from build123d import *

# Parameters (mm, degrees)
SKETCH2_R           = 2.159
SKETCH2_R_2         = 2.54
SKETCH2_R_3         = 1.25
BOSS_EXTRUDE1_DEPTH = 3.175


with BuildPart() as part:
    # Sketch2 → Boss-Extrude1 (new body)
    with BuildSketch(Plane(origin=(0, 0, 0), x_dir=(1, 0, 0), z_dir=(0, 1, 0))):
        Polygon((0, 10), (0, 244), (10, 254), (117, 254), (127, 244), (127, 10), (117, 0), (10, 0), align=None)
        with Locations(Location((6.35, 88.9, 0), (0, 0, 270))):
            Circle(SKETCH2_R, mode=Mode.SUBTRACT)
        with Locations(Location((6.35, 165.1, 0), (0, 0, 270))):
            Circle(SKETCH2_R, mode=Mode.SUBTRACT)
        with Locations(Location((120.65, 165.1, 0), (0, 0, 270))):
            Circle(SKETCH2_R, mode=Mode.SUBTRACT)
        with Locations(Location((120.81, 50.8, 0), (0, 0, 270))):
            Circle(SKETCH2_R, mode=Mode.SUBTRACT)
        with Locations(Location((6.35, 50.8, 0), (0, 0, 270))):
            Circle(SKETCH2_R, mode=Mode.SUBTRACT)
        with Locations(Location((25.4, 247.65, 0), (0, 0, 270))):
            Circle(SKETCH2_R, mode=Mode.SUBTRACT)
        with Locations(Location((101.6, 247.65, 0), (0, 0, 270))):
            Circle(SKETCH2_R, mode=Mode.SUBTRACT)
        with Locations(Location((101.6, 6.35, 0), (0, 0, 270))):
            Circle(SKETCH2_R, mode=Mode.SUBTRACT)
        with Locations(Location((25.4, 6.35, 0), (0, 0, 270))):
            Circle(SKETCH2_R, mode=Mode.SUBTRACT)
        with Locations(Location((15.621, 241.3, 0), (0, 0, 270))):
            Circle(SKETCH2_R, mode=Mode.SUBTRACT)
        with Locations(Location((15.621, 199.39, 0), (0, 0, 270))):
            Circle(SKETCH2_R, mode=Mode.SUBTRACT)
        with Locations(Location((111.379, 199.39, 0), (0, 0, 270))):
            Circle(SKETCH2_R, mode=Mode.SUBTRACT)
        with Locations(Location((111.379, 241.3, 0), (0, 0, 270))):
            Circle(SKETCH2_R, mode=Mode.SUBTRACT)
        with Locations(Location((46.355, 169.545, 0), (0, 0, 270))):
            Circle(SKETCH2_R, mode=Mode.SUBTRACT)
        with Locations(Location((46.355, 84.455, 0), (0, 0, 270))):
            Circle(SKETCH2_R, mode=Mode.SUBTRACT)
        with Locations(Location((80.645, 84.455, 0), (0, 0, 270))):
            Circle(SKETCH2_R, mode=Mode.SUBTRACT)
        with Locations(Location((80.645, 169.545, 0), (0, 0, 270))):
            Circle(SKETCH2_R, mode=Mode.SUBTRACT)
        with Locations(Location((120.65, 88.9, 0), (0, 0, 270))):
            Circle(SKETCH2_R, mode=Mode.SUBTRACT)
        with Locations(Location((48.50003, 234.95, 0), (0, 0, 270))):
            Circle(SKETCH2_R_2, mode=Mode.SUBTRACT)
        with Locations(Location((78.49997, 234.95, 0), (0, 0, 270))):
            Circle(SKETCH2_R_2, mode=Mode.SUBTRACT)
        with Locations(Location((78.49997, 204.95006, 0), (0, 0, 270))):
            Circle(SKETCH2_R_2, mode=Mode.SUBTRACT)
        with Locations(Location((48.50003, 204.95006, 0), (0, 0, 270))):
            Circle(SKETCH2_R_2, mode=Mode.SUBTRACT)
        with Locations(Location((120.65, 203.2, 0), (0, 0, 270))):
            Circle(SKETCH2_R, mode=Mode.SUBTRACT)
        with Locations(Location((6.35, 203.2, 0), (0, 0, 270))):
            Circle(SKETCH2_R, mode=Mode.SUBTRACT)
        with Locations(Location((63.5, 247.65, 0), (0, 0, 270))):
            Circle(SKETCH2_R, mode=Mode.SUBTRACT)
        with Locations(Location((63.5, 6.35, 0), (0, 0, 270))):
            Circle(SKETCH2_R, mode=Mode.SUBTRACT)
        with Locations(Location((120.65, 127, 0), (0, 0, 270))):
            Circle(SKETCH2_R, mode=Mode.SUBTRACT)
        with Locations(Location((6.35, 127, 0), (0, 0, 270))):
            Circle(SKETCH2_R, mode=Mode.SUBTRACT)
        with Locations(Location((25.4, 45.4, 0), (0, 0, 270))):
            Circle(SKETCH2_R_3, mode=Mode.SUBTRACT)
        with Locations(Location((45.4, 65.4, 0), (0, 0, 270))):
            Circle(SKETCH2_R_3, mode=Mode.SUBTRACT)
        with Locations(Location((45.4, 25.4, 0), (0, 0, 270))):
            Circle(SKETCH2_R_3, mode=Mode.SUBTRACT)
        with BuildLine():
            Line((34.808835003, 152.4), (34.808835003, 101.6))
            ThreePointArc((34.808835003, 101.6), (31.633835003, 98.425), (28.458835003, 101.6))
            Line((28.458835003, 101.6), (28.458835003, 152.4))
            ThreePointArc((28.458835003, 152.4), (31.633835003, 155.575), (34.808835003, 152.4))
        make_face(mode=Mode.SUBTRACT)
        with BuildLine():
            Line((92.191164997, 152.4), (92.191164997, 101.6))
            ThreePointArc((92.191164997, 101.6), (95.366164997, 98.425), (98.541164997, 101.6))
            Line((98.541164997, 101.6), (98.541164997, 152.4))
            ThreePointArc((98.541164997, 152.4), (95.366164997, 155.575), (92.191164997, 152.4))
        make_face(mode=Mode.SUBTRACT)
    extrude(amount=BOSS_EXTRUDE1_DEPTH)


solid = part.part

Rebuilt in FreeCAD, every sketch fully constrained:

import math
import FreeCAD as App
import Part
import Sketcher
from FreeCAD import Vector
Q = App.Units.Quantity

doc = App.newDocument("Part")
body = doc.addObject("PartDesign::Body", "Body")

sketch1 = doc.addObject("Sketcher::SketchObject", "Sketch")
body.addObject(sketch1)
sketch1.AttachmentSupport = (doc.XZ_Plane, [""])
sketch1.MapMode = "FlatFace"
sketch1.addGeometry([
    Part.LineSegment(Vector(0, -244, 0), Vector(0, -10, 0)),
    Part.LineSegment(Vector(0, -10, 0), Vector(10, 0, 0)),
    Part.LineSegment(Vector(10, 0, 0), Vector(117, 0, 0)),
    Part.LineSegment(Vector(117, 0, 0), Vector(127, -10, 0)),
    Part.LineSegment(Vector(127, -10, 0), Vector(127, -244, 0)),
    Part.LineSegment(Vector(127, -244, 0), Vector(117, -254, 0)),
    Part.LineSegment(Vector(117, -254, 0), Vector(10, -254, 0)),
    Part.LineSegment(Vector(10, -254, 0), Vector(0, -244, 0)),
    Part.Circle(Vector(101.6, -6.3, 0), Vector(0, 0, 1), 2.2),
    Part.Circle(Vector(120.8, -50.8, 0), Vector(0, 0, 1), 2.2),
    Part.Circle(Vector(120.7, -88.9, 0), Vector(0, 0, 1), 2.2),
    Part.Circle(Vector(80.6, -84.5, 0), Vector(0, 0, 1), 2.2),
    Part.Circle(Vector(63.5, -6.3, 0), Vector(0, 0, 1), 2.2),
    Part.Circle(Vector(45.4, -25.4, 0), Vector(0, 0, 1), 1.2),
    Part.Circle(Vector(45.4, -65.4, 0), Vector(0, 0, 1), 1.2),
    Part.Circle(Vector(25.4, -6.3, 0), Vector(0, 0, 1), 2.2),
    Part.Circle(Vector(25.4, -45.4, 0), Vector(0, 0, 1), 1.2),
    Part.Circle(Vector(6.3, -50.8, 0), Vector(0, 0, 1), 2.2),
    Part.Circle(Vector(46.4, -84.5, 0), Vector(0, 0, 1), 2.2),
    Part.Circle(Vector(6.3, -88.9, 0), Vector(0, 0, 1), 2.2),
    Part.Circle(Vector(120.7, -127, 0), Vector(0, 0, 1), 2.2),
    Part.ArcOfCircle(Part.Circle(Vector(95.4, -152.4, 0), Vector(0, 0, 1), 3.2), math.radians(180), math.radians(360)),
    Part.LineSegment(Vector(98.5, -152.4, 0), Vector(98.5, -101.6, 0)),
    Part.ArcOfCircle(Part.Circle(Vector(95.4, -101.6, 0), Vector(0, 0, 1), 3.2), math.radians(0), math.radians(180)),
    Part.LineSegment(Vector(92.2, -101.6, 0), Vector(92.2, -152.4, 0)),
    Part.Circle(Vector(120.7, -165.1, 0), Vector(0, 0, 1), 2.2),
    Part.Circle(Vector(80.6, -169.5, 0), Vector(0, 0, 1), 2.2),
    Part.Circle(Vector(120.7, -203.2, 0), Vector(0, 0, 1), 2.2),
    Part.Circle(Vector(111.4, -199.4, 0), Vector(0, 0, 1), 2.2),
    Part.Circle(Vector(111.4, -241.3, 0), Vector(0, 0, 1), 2.2),
    Part.Circle(Vector(101.6, -247.7, 0), Vector(0, 0, 1), 2.2),
    Part.Circle(Vector(78.5, -205, 0), Vector(0, 0, 1), 2.5),
    Part.Circle(Vector(78.5, -234.9, 0), Vector(0, 0, 1), 2.5),
    Part.Circle(Vector(46.4, -169.5, 0), Vector(0, 0, 1), 2.2),
    Part.LineSegment(Vector(34.8, -152.4, 0), Vector(34.8, -101.6, 0)),
    Part.ArcOfCircle(Part.Circle(Vector(31.6, -101.6, 0), Vector(0, 0, 1), 3.2), math.radians(0), math.radians(180)),
    Part.LineSegment(Vector(28.5, -101.6, 0), Vector(28.5, -152.4, 0)),
    Part.ArcOfCircle(Part.Circle(Vector(31.6, -152.4, 0), Vector(0, 0, 1), 3.2), math.radians(180), math.radians(360)),
    Part.Circle(Vector(6.3, -127, 0), Vector(0, 0, 1), 2.2),
    Part.Circle(Vector(6.3, -165.1, 0), Vector(0, 0, 1), 2.2),
    Part.Circle(Vector(48.5, -205, 0), Vector(0, 0, 1), 2.5),
    Part.Circle(Vector(63.5, -247.7, 0), Vector(0, 0, 1), 2.2),
    Part.Circle(Vector(48.5, -234.9, 0), Vector(0, 0, 1), 2.5),
    Part.Circle(Vector(15.6, -199.4, 0), Vector(0, 0, 1), 2.2),
    Part.Circle(Vector(6.3, -203.2, 0), Vector(0, 0, 1), 2.2),
    Part.Circle(Vector(25.4, -247.7, 0), Vector(0, 0, 1), 2.2),
    Part.Circle(Vector(15.6, -241.3, 0), Vector(0, 0, 1), 2.2),
], False)
sketch1.addConstraint([
    Sketcher.Constraint("Coincident", 0, 2, 1, 1),
    Sketcher.Constraint("Coincident", 1, 2, 2, 1),
    Sketcher.Constraint("Coincident", 2, 2, 3, 1),
    Sketcher.Constraint("Coincident", 3, 2, 4, 1),
    Sketcher.Constraint("Coincident", 4, 2, 5, 1),
    Sketcher.Constraint("Coincident", 5, 2, 6, 1),
    Sketcher.Constraint("Coincident", 6, 2, 7, 1),
    Sketcher.Constraint("Coincident", 7, 2, 0, 1),
    Sketcher.Constraint("Tangent", 21, 2, 22, 1),
    Sketcher.Constraint("Tangent", 22, 2, 23, 1),
    Sketcher.Constraint("Tangent", 23, 2, 24, 1),
    Sketcher.Constraint("Tangent", 24, 2, 21, 1),
    Sketcher.Constraint("Tangent", 34, 2, 35, 1),
    Sketcher.Constraint("Tangent", 35, 2, 36, 1),
    Sketcher.Constraint("Tangent", 36, 2, 37, 1),
    Sketcher.Constraint("Tangent", 37, 2, 34, 1),
    Sketcher.Constraint("Vertical", 0),
    Sketcher.Constraint("Horizontal", 2),
    Sketcher.Constraint("Vertical", 4),
    Sketcher.Constraint("Horizontal", 6),
    Sketcher.Constraint("Vertical", 22),
    Sketcher.Constraint("Vertical", 24),
    Sketcher.Constraint("Vertical", 34),
    Sketcher.Constraint("Vertical", 36),
    Sketcher.Constraint("Equal", 8, 9),
    Sketcher.Constraint("Equal", 9, 10),
    Sketcher.Constraint("Equal", 10, 11),
    Sketcher.Constraint("Equal", 11, 12),
    Sketcher.Constraint("Equal", 13, 14),
    Sketcher.Constraint("Equal", 12, 15),
    Sketcher.Constraint("Equal", 14, 16),
    Sketcher.Constraint("Equal", 15, 17),
    Sketcher.Constraint("Equal", 17, 18),
    Sketcher.Constraint("Equal", 18, 19),
    Sketcher.Constraint("Equal", 19, 20),
    Sketcher.Constraint("Equal", 20, 25),
    Sketcher.Constraint("Equal", 25, 26),
    Sketcher.Constraint("Equal", 26, 27),
    Sketcher.Constraint("Equal", 27, 28),
    Sketcher.Constraint("Equal", 28, 29),
    Sketcher.Constraint("Equal", 29, 30),
    Sketcher.Constraint("Equal", 31, 32),
    Sketcher.Constraint("Equal", 30, 33),
    Sketcher.Constraint("Equal", 23, 35),
    Sketcher.Constraint("Equal", 33, 38),
    Sketcher.Constraint("Equal", 38, 39),
    Sketcher.Constraint("Equal", 32, 40),
    Sketcher.Constraint("Equal", 39, 41),
    Sketcher.Constraint("Equal", 40, 42),
    Sketcher.Constraint("Equal", 41, 43),
    Sketcher.Constraint("Equal", 43, 44),
    Sketcher.Constraint("Equal", 44, 45),
    Sketcher.Constraint("Equal", 45, 46),
    Sketcher.Constraint("PointOnObject", 0, 2, -2),
    Sketcher.Constraint("PointOnObject", 1, 2, -1),
    Sketcher.Constraint("Perpendicular", 1, 3),
    Sketcher.Constraint("Perpendicular", 3, 5),
    Sketcher.Constraint("Perpendicular", 5, 7),
    Sketcher.Constraint("Horizontal", 8, 3, 12, 3),
    Sketcher.Constraint("Horizontal", 12, 3, 15, 3),
    Sketcher.Constraint("Horizontal", 9, 3, 17, 3),
    Sketcher.Constraint("Horizontal", 11, 3, 18, 3),
    Sketcher.Constraint("Horizontal", 10, 3, 19, 3),
    Sketcher.Constraint("Horizontal", 26, 3, 33, 3),
    Sketcher.Constraint("Horizontal", 23, 3, 35, 3),
    Sketcher.Constraint("Horizontal", 21, 3, 37, 3),
    Sketcher.Constraint("Horizontal", 20, 3, 38, 3),
    Sketcher.Constraint("Horizontal", 25, 3, 39, 3),
    Sketcher.Constraint("Horizontal", 31, 3, 40, 3),
    Sketcher.Constraint("Horizontal", 30, 3, 41, 3),
    Sketcher.Constraint("Horizontal", 32, 3, 42, 3),
    Sketcher.Constraint("Horizontal", 28, 3, 43, 3),
    Sketcher.Constraint("Horizontal", 27, 3, 44, 3),
    Sketcher.Constraint("Horizontal", 41, 3, 45, 3),
    Sketcher.Constraint("Horizontal", 29, 3, 46, 3),
    Sketcher.Constraint("Horizontal", 0, 2, 3, 2),
    Sketcher.Constraint("Horizontal", 4, 2, 7, 2),
    Sketcher.Constraint("Vertical", 13, 3, 14, 3),
    Sketcher.Constraint("Vertical", 15, 3, 16, 3),
    Sketcher.Constraint("Vertical", 17, 3, 19, 3),
    Sketcher.Constraint("Vertical", 10, 3, 20, 3),
    Sketcher.Constraint("Vertical", 20, 3, 25, 3),
    Sketcher.Constraint("Vertical", 11, 3, 26, 3),
    Sketcher.Constraint("Vertical", 25, 3, 27, 3),
    Sketcher.Constraint("Vertical", 28, 3, 29, 3),
    Sketcher.Constraint("Vertical", 8, 3, 30, 3),
    Sketcher.Constraint("Vertical", 31, 3, 32, 3),
    Sketcher.Constraint("Vertical", 18, 3, 33, 3),
    Sketcher.Constraint("Vertical", 19, 3, 38, 3),
    Sketcher.Constraint("Vertical", 38, 3, 39, 3),
    Sketcher.Constraint("Vertical", 12, 3, 41, 3),
    Sketcher.Constraint("Vertical", 40, 3, 42, 3),
    Sketcher.Constraint("Vertical", 39, 3, 44, 3),
    Sketcher.Constraint("Vertical", 16, 3, 45, 3),
    Sketcher.Constraint("Vertical", 43, 3, 46, 3),
    Sketcher.Constraint("Vertical", 2, 2, 5, 2),
    Sketcher.Constraint("Vertical", 1, 2, 6, 2),
    Sketcher.Constraint("Diameter", 31, Q("0.2 in")),
    Sketcher.Constraint("Diameter", 8, Q("0.17 in")),
    Sketcher.Constraint("DistanceY", 22, 1, 22, 2, Q("2 in")),
    Sketcher.Constraint("DistanceX", -1, 1, 8, 3, Q("4 in")),
    Sketcher.Constraint("DistanceY", 9, 3, -1, 1, Q("2 in")),
    Sketcher.Constraint("DistanceY", 13, 3, -1, 1, Q("1 in")),
    Sketcher.Constraint("DistanceX", -1, 1, 15, 3, Q("1 in")),
    Sketcher.Constraint("DistanceY", 20, 3, -1, 1, Q("5 in")),
    Sketcher.Constraint("DistanceY", 21, 3, -1, 1, Q("6 in")),
    Sketcher.Constraint("DistanceY", 27, 3, -1, 1, Q("8 in")),
    Sketcher.Constraint("DistanceX", -1, 1, 3, 2, Q("5 in")),
    Sketcher.Constraint("DistanceY", 5, 2, -1, 1, Q("10 in")),
    Sketcher.Constraint("Radius", 21, Q("0.125 in")),
    Sketcher.Constraint("DistanceY", 25, 3, 10, 3, Q("3 in")),
    Sketcher.Constraint("DistanceY", 29, 3, 25, 3, Q("3 in")),
    Sketcher.Constraint("DistanceY", 10, 3, -1, 1, Q("3.5 in")),
    Sketcher.Constraint("DistanceX", -1, 1, 12, 3, Q("2.5 in")),
    Sketcher.Constraint("DistanceY", 30, 3, 28, 3, Q("1.9 in")),
    Sketcher.Constraint("DistanceY", 30, 3, 32, 3, Q("0.5 in")),
    Sketcher.Constraint("Diameter", 13, Q("2.5 mm")),
    Sketcher.Constraint("DistanceY", 8, 3, -1, 1, Q("0.25 in")),
    Sketcher.Constraint("DistanceX", -1, 1, 10, 3, Q("4.75 in")),
    Sketcher.Constraint("DistanceX", -1, 1, 17, 3, Q("0.25 in")),
    Sketcher.Constraint("DistanceY", 28, 3, -1, 1, Q("7.85 in")),
    Sketcher.Constraint("DistanceX", 18, 3, 11, 3, Q("1.35 in")),
    Sketcher.Constraint("DistanceY", 26, 3, 11, 3, Q("3.35 in")),
    Sketcher.Constraint("DistanceX", 26, 3, 28, 3, Q("1.21 in")),
    Sketcher.Constraint("DistanceX", 43, 3, 33, 3, Q("1.21 in")),
    Sketcher.Constraint("DistanceX", 2, 2, 9, 3, Q("0.15 in")),
    Sketcher.Constraint("DistanceX", -1, 1, 11, 3, Q("3.175 in")),
    Sketcher.Constraint("DistanceY", 11, 3, -1, 1, Q("3.325 in")),
    Sketcher.Constraint("DistanceX", 2, 1, 2, 2, Q("107 mm")),
    Sketcher.Constraint("DistanceY", 31, 3, -1, 1, Q("8.0689 in")),
    Sketcher.Constraint("DistanceX", 40, 3, 31, 3, Q("1.1811 in")),
    Sketcher.Constraint("DistanceX", -1, 1, 13, 3, Q("45.4 mm")),
    Sketcher.Constraint("DistanceY", 14, 3, -1, 1, Q("65.4 mm")),
    Sketcher.Constraint("DistanceY", 16, 3, -1, 1, Q("45.4 mm")),
    Sketcher.Constraint("DistanceX", -1, 1, 31, 3, Q("78.49997 mm")),
    Sketcher.Constraint("DistanceX", 37, 3, 21, 3, Q("63.73233 mm")),
    Sketcher.Constraint("DistanceX", -1, 1, 21, 3, Q("95.366165 mm")),
])
pad1 = doc.addObject("PartDesign::Pad", "Pad")
body.addObject(pad1)
pad1.Profile = sketch1
pad1.Length = Q("0.125 in")
pad1.Reversed = True

doc.recompute()
